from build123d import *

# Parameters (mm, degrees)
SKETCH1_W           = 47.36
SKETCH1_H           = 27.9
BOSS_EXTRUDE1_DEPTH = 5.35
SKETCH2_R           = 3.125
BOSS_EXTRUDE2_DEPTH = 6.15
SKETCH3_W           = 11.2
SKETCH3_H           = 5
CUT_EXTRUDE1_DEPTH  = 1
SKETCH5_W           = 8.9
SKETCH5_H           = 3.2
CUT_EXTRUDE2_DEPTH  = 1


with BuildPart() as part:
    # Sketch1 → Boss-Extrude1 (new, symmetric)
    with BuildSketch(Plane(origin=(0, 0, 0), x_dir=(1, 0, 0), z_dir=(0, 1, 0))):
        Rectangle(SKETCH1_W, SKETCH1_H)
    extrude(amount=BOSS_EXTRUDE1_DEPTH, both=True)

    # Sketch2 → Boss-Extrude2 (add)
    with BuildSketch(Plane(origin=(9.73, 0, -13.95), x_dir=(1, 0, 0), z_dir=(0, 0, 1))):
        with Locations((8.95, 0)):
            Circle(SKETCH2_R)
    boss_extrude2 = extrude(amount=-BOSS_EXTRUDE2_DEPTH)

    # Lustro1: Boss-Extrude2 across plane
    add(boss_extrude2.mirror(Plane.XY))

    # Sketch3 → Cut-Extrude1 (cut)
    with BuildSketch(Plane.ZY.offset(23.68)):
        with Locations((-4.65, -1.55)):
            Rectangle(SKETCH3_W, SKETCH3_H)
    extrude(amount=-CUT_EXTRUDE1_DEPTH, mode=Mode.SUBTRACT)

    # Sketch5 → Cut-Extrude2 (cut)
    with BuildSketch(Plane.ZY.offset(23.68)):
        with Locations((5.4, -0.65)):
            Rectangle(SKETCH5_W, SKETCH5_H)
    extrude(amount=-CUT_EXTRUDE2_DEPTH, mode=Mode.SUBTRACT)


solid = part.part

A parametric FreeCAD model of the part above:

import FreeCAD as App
import Part
import Sketcher

V = App.Vector


def add_polygon(sketch, points):
    """Adds a closed chain of lines whose ends are joined by coincident constraints."""
    first, n = sketch.GeometryCount, len(points)
    for a, b in zip(points, points[1:] + points[:1]):
        sketch.addGeometry(Part.LineSegment(App.Vector(*a, 0), App.Vector(*b, 0)), False)
    for i in range(n):
        sketch.addConstraint(Sketcher.Constraint("Coincident", first + i, 2, first + (i + 1) % n, 1))

doc = App.newDocument("Part")
body = doc.addObject("PartDesign::Body", "Body")

sketch1 = body.newObject("Sketcher::SketchObject", "Sketch")
sketch1.AttachmentSupport = (doc.getObject("XZ_Plane"), [""])
sketch1.MapMode = "FlatFace"
add_polygon(sketch1, [(-23.68, -13.95), (-23.68, 13.95), (23.68, 13.95), (23.68, -13.95)])
sketch1.addConstraint([
    Sketcher.Constraint("Vertical", 0),
    Sketcher.Constraint("Horizontal", 1),
    Sketcher.Constraint("Vertical", 2),
    Sketcher.Constraint("Horizontal", 3),
    Sketcher.Constraint("Symmetric", 0, 2, 2, 2, -1, 1),
    Sketcher.Constraint("DistanceY", 0, 1, 0, 2, 27.9),
    Sketcher.Constraint("DistanceX", 1, 1, 1, 2, 47.36),
])
pad1 = body.newObject("PartDesign::Pad", "Pad")
pad1.Profile = sketch1
pad1.Length = 10.7
pad1.Midplane = True

sketch2 = body.newObject("Sketcher::SketchObject", "Sketch001")
sketch2.AttachmentSupport = (doc.getObject("XY_Plane"), [""])
sketch2.MapMode = "FlatFace"
sketch2.AttachmentOffset = App.Placement(V(0, 0, -13.95), App.Rotation())
sketch2.addGeometry(Part.Circle(V(18.68, 0, 0), V(0, 0, 1), 3.125), False)
sketch2.addConstraint([
    Sketcher.Constraint("PointOnObject", 0, 3, -1),
    Sketcher.Constraint("Diameter", 0, 6.25),
    Sketcher.Constraint("DistanceX", -1, 1, 0, 3, 18.68),
])
pad2 = body.newObject("PartDesign::Pad", "Pad001")
pad2.Profile = sketch2
pad2.Length = 6.15
pad2.Reversed = True
doc.recompute()

mirrored = body.newObject("PartDesign::Mirrored", "Mirrored")
mirrored.Originals = [pad2]
mirrored.MirrorPlane = (doc.getObject("XY_Plane"), [""])
body.Tip = mirrored

sketch3 = body.newObject("Sketcher::SketchObject", "Sketch002")
sketch3.AttachmentSupport = (doc.getObject("YZ_Plane"), [""])
sketch3.MapMode = "FlatFace"
sketch3.AttachmentOffset = App.Placement(V(0, 0, -23.68), App.Rotation())
add_polygon(sketch3, [(0.95, -10.25), (-4.05, -10.25), (-4.05, 0.95), (0.95, 0.95)])
sketch3.addConstraint([
    Sketcher.Constraint("Horizontal", 0),
    Sketcher.Constraint("Vertical", 1),
    Sketcher.Constraint("Horizontal", 2),
    Sketcher.Constraint("Vertical", 3),
    Sketcher.Constraint("DistanceX", 0, 2, 0, 1, 5.0),
    Sketcher.Constraint("DistanceY", 1, 1, 1, 2, 11.2),
    Sketcher.Constraint("DistanceX", 0, 2, -1, 1, 4.05),
    Sketcher.Constraint("DistanceY", 0, 2, -1, 1, 10.25),
])
pocket1 = body.newObject("PartDesign::Pocket", "Pocket")
pocket1.Profile = sketch3
pocket1.Length = 1
pocket1.Reversed = True

sketch4 = body.newObject("Sketcher::SketchObject", "Sketch003")
sketch4.AttachmentSupport = (doc.getObject("YZ_Plane"), [""])
sketch4.MapMode = "FlatFace"
sketch4.AttachmentOffset = App.Placement(V(0, 0, -23.68), App.Rotation())
add_polygon(sketch4, [(0.95, 0.95), (-2.25, 0.95), (-2.25, 9.85), (0.95, 9.85)])
sketch4.addConstraint([
    Sketcher.Constraint("Horizontal", 0),
    Sketcher.Constraint("Vertical", 1),
    Sketcher.Constraint("Horizontal", 2),
    Sketcher.Constraint("Vertical", 3),
    Sketcher.Constraint("DistanceX", 0, 2, 0, 1, 3.2),
    Sketcher.Constraint("DistanceY", 1, 1, 1, 2, 8.9),
    Sketcher.Constraint("DistanceX", 0, 2, -1, 1, 2.25),
    Sketcher.Constraint("DistanceY", -1, 1, 0, 2, 0.95),
])
pocket2 = body.newObject("PartDesign::Pocket", "Pocket001")
pocket2.Profile = sketch4
pocket2.Length = 1
pocket2.Reversed = True

doc.recompute()
